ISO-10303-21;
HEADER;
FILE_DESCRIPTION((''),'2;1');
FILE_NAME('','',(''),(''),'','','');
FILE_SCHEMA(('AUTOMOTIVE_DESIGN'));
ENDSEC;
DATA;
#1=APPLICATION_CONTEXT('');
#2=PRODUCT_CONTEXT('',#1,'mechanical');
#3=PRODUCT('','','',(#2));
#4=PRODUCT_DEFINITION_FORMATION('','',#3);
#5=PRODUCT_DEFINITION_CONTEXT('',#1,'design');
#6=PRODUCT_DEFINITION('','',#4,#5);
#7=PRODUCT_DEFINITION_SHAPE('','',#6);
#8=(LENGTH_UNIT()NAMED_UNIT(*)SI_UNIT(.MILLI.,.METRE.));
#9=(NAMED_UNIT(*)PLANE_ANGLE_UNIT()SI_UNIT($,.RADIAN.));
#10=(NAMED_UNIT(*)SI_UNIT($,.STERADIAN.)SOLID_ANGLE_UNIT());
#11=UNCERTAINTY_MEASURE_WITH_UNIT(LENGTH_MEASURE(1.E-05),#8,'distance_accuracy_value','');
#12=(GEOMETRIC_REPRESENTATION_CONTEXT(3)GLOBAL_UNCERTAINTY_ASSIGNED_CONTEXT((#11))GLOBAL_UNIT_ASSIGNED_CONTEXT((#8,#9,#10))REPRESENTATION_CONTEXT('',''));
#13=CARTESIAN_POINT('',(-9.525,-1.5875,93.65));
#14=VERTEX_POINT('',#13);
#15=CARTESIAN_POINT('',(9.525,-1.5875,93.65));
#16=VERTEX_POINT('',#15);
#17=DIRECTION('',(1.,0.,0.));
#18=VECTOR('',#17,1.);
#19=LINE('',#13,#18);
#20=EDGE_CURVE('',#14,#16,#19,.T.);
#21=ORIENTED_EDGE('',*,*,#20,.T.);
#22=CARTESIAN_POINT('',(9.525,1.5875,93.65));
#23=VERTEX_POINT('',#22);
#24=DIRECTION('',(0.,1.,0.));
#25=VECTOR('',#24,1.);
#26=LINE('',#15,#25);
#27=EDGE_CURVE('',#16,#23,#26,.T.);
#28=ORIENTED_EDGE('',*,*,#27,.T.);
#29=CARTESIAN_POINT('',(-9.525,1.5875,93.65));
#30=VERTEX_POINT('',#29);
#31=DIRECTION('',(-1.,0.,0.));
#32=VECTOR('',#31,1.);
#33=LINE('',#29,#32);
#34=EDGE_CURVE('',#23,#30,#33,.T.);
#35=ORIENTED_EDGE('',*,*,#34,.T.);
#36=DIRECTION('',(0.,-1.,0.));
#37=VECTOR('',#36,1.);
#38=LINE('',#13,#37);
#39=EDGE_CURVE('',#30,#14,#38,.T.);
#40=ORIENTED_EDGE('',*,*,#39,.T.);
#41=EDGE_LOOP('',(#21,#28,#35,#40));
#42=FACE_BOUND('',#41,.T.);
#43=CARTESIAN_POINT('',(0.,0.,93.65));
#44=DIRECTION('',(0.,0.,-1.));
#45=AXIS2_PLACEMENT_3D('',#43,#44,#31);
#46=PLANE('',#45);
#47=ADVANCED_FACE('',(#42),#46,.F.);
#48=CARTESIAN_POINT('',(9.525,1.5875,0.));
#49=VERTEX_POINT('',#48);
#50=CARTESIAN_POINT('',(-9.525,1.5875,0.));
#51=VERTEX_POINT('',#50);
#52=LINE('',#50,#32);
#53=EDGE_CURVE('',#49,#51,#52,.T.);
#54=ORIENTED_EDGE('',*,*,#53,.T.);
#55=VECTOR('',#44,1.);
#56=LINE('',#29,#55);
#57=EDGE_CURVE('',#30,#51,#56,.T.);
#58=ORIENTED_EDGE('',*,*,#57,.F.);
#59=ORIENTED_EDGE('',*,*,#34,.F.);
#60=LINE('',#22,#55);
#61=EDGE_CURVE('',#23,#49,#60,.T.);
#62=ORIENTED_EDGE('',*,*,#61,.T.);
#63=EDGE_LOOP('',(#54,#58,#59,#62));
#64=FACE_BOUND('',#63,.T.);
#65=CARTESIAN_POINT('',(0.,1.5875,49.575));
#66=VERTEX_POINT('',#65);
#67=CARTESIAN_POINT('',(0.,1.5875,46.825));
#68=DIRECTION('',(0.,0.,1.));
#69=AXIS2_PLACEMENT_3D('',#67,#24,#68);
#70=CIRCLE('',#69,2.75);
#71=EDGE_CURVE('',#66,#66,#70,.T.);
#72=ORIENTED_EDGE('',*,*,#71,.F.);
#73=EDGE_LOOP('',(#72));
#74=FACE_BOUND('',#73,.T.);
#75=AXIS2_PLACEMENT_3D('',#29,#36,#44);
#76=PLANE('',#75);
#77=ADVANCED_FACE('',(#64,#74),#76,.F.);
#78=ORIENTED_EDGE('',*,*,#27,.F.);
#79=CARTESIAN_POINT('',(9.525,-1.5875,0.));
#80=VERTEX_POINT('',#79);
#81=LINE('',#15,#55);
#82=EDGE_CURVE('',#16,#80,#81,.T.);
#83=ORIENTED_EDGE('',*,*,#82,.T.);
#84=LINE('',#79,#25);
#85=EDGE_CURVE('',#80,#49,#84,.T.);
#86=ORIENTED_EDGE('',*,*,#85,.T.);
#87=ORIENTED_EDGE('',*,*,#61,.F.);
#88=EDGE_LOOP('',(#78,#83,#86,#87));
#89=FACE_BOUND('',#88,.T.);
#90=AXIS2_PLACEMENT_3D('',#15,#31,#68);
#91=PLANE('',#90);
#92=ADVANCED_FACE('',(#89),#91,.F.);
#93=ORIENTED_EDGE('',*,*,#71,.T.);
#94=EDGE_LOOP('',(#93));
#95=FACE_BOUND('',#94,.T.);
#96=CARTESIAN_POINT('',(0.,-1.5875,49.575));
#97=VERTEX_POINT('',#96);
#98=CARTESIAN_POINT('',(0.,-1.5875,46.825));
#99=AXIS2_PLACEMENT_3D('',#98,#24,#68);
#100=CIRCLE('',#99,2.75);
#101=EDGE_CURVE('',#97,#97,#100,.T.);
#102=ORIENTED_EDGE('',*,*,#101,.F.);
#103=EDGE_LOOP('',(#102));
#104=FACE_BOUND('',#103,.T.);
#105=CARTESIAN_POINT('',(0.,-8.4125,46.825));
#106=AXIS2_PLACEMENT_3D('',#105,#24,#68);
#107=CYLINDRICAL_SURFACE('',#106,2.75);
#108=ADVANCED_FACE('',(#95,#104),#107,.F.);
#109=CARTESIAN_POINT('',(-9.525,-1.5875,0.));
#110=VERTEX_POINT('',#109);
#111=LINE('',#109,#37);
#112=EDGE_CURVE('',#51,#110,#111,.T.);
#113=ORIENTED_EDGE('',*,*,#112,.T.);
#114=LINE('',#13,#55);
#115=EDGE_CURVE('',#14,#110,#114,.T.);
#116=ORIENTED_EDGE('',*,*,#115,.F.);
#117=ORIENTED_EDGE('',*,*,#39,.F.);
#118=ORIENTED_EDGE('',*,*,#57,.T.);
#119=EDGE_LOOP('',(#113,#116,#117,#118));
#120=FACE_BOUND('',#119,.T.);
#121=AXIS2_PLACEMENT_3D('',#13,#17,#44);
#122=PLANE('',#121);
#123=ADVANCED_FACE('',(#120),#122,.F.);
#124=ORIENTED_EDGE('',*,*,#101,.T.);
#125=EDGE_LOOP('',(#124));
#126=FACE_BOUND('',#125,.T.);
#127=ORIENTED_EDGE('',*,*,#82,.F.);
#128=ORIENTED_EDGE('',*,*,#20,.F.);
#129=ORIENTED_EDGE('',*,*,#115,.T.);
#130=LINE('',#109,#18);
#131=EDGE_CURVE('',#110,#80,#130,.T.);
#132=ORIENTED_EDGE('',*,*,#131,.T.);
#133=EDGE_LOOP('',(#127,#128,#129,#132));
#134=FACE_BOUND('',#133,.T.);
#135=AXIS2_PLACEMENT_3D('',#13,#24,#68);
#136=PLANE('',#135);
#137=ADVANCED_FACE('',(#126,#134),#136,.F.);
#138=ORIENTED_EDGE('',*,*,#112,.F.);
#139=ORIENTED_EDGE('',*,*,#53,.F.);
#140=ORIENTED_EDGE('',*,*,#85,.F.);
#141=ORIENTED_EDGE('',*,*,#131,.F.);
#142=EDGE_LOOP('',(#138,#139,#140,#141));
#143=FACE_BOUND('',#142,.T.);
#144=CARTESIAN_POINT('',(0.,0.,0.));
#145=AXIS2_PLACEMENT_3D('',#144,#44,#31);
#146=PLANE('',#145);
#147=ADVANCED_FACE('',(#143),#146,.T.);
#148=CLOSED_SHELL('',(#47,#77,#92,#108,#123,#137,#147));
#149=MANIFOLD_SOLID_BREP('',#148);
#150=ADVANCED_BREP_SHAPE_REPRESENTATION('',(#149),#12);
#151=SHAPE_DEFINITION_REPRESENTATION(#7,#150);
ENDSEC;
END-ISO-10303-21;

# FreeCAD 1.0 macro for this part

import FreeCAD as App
import Part
import Sketcher

doc = App.newDocument("Part")
params = doc.addObject("Spreadsheet::Sheet", "Params")
for row, (alias, value) in enumerate([
    ("sketch1_width", "19.05 mm"),
    ("pad1_length", "93.65 mm"),
    ("sketch2_diameter", "5.5 mm"),
    ("pocket1_length", "10 mm"),
], start=1):
    params.set(f"A{row}", alias)
    params.set(f"B{row}", "=" + value)
    params.setAlias(f"B{row}", alias)

body = doc.addObject("PartDesign::Body", "Body")

# Sketch on XY plane
sketch1 = body.newObject("Sketcher::SketchObject", "Sketch")
sketch1.AttachmentSupport = (doc.getObject("XY_Plane"), [""])
sketch1.MapMode = "FlatFace"
sketch1.addGeometry(Part.LineSegment(App.Vector(-9.5, 1.6, 0), App.Vector(-9.5, -1.6, 0)), False)
sketch1.addGeometry(Part.LineSegment(App.Vector(-9.5, -1.6, 0), App.Vector(9.5, -1.6, 0)), False)
sketch1.addGeometry(Part.LineSegment(App.Vector(9.5, -1.6, 0), App.Vector(9.5, 1.6, 0)), False)
sketch1.addGeometry(Part.LineSegment(App.Vector(9.5, 1.6, 0), App.Vector(-9.5, 1.6, 0)), False)
sketch1.addConstraint(Sketcher.Constraint("Coincident", 0, 2, 1, 1))
sketch1.addConstraint(Sketcher.Constraint("Coincident", 1, 2, 2, 1))
sketch1.addConstraint(Sketcher.Constraint("Coincident", 2, 2, 3, 1))
sketch1.addConstraint(Sketcher.Constraint("Coincident", 3, 2, 0, 1))
sketch1.addConstraint(Sketcher.Constraint("Vertical", 0))
sketch1.addConstraint(Sketcher.Constraint("Horizontal", 1))
sketch1.addConstraint(Sketcher.Constraint("Vertical", 2))
sketch1.addConstraint(Sketcher.Constraint("Horizontal", 3))
sketch1.addConstraint(Sketcher.Constraint("Symmetric", 0, 2, 2, 2, -1, 1))
sketch1.addConstraint(Sketcher.Constraint("DistanceX", 1, 1, 1, 2, 19.05))
sketch1.addConstraint(Sketcher.Constraint("DistanceY", 0, 2, 0, 1, 3.175))
sketch1.setExpression("Constraints[9]", "Params.sketch1_width")
pad1 = body.newObject("PartDesign::Pad", "Pad")
pad1.Profile = sketch1
pad1.setExpression("Length", "Params.pad1_length")

# Sketch on XZ plane
sketch2 = body.newObject("Sketcher::SketchObject", "Sketch001")
sketch2.AttachmentSupport = (doc.getObject("XZ_Plane"), [""])
sketch2.MapMode = "FlatFace"
sketch2.AttachmentOffset = App.Placement(App.Vector(0, 0, -1.5875), App.Rotation())
sketch2.addGeometry(Part.Circle(App.Vector(0, 46.8, 0), App.Vector(0, 0, 1), 2.8), False)
sketch2.addConstraint(Sketcher.Constraint("PointOnObject", 0, 3, -2))
sketch2.addConstraint(Sketcher.Constraint("Diameter", 0, 5.5))
sketch2.addConstraint(Sketcher.Constraint("DistanceY", -1, 1, 0, 3, 46.825))
sketch2.setExpression("Constraints[1]", "Params.sketch2_diameter")
pocket1 = body.newObject("PartDesign::Pocket", "Pocket")
pocket1.Profile = sketch2
pocket1.setExpression("Length", "Params.pocket1_length")
pocket1.Reversed = True

doc.recompute()
